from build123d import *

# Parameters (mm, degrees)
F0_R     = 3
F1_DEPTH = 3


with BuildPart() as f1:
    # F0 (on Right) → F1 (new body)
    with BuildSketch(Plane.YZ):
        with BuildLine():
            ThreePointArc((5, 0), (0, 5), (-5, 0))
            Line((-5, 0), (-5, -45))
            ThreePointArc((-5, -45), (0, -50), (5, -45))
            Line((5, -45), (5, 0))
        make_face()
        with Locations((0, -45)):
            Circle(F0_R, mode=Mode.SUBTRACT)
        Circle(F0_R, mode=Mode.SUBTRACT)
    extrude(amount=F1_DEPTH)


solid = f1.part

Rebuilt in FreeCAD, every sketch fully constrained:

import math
import FreeCAD as App
import Part
import Sketcher
from FreeCAD import Vector
Q = App.Units.Quantity

doc = App.newDocument("Part")
params = doc.addObject("Spreadsheet::Sheet", "Params")
for row, (alias, value) in enumerate([
    ("sketch1_diameter", "6 mm"),
    ("sketch1_radius", "5 mm"),
    ("sketch1_height", "45 mm"),
    ("pad1_length", "3 mm"),
], start=1):
    params.set(f"A{row}", alias)
    params.set(f"B{row}", "=" + value)
    params.setAlias(f"B{row}", alias)

body = doc.addObject("PartDesign::Body", "Body")

sketch1 = doc.addObject("Sketcher::SketchObject", "Sketch")
body.addObject(sketch1)
sketch1.AttachmentSupport = (doc.YZ_Plane, [""])
sketch1.MapMode = "FlatFace"
sketch1.addGeometry(Part.ArcOfCircle(Part.Circle(Vector(0, 0, 0), Vector(0, 0, 1), 5), math.radians(0), math.radians(180)), False)
sketch1.addGeometry(Part.LineSegment(Vector(-5, 0, 0), Vector(-5, -45, 0)), False)
sketch1.addGeometry(Part.ArcOfCircle(Part.Circle(Vector(0, -45, 0), Vector(0, 0, 1), 5), math.radians(180), math.radians(360)), False)
sketch1.addGeometry(Part.LineSegment(Vector(5, -45, 0), Vector(5, 0, 0)), False)
sketch1.addGeometry(Part.Circle(Vector(0, -45, 0), Vector(0, 0, 1), 3), False)
sketch1.addGeometry(Part.Circle(Vector(0, 0, 0), Vector(0, 0, 1), 3), False)
sketch1.addConstraint(Sketcher.Constraint("Tangent", 0, 2, 1, 1))
sketch1.addConstraint(Sketcher.Constraint("Tangent", 1, 2, 2, 1))
sketch1.addConstraint(Sketcher.Constraint("Tangent", 2, 2, 3, 1))
sketch1.addConstraint(Sketcher.Constraint("Tangent", 3, 2, 0, 1))
sketch1.addConstraint(Sketcher.Constraint("Vertical", 1))
sketch1.addConstraint(Sketcher.Constraint("Vertical", 3))
sketch1.addConstraint(Sketcher.Constraint("Coincident", 0, 3, -1, 1))
sketch1.addConstraint(Sketcher.Constraint("Coincident", 5, 3, -1, 1))
sketch1.addConstraint(Sketcher.Constraint("Coincident", 4, 3, 2, 3))
sketch1.addConstraint(Sketcher.Constraint("Equal", 4, 5))
sketch1.addConstraint(Sketcher.Constraint("Diameter", 4, Q("6 mm")))
sketch1.addConstraint(Sketcher.Constraint("Radius", 0, Q("5 mm")))
sketch1.addConstraint(Sketcher.Constraint("DistanceY", 1, 2, 1, 1, Q("45 mm")))
sketch1.setExpression("Constraints[10]", "Params.sketch1_diameter")
sketch1.setExpression("Constraints[11]", "Params.sketch1_radius")
sketch1.setExpression("Constraints[12]", "Params.sketch1_height")
pad1 = doc.addObject("PartDesign::Pad", "Pad")
body.addObject(pad1)
pad1.Profile = sketch1
pad1.setExpression("Length", "Params.pad1_length")

doc.recompute()
